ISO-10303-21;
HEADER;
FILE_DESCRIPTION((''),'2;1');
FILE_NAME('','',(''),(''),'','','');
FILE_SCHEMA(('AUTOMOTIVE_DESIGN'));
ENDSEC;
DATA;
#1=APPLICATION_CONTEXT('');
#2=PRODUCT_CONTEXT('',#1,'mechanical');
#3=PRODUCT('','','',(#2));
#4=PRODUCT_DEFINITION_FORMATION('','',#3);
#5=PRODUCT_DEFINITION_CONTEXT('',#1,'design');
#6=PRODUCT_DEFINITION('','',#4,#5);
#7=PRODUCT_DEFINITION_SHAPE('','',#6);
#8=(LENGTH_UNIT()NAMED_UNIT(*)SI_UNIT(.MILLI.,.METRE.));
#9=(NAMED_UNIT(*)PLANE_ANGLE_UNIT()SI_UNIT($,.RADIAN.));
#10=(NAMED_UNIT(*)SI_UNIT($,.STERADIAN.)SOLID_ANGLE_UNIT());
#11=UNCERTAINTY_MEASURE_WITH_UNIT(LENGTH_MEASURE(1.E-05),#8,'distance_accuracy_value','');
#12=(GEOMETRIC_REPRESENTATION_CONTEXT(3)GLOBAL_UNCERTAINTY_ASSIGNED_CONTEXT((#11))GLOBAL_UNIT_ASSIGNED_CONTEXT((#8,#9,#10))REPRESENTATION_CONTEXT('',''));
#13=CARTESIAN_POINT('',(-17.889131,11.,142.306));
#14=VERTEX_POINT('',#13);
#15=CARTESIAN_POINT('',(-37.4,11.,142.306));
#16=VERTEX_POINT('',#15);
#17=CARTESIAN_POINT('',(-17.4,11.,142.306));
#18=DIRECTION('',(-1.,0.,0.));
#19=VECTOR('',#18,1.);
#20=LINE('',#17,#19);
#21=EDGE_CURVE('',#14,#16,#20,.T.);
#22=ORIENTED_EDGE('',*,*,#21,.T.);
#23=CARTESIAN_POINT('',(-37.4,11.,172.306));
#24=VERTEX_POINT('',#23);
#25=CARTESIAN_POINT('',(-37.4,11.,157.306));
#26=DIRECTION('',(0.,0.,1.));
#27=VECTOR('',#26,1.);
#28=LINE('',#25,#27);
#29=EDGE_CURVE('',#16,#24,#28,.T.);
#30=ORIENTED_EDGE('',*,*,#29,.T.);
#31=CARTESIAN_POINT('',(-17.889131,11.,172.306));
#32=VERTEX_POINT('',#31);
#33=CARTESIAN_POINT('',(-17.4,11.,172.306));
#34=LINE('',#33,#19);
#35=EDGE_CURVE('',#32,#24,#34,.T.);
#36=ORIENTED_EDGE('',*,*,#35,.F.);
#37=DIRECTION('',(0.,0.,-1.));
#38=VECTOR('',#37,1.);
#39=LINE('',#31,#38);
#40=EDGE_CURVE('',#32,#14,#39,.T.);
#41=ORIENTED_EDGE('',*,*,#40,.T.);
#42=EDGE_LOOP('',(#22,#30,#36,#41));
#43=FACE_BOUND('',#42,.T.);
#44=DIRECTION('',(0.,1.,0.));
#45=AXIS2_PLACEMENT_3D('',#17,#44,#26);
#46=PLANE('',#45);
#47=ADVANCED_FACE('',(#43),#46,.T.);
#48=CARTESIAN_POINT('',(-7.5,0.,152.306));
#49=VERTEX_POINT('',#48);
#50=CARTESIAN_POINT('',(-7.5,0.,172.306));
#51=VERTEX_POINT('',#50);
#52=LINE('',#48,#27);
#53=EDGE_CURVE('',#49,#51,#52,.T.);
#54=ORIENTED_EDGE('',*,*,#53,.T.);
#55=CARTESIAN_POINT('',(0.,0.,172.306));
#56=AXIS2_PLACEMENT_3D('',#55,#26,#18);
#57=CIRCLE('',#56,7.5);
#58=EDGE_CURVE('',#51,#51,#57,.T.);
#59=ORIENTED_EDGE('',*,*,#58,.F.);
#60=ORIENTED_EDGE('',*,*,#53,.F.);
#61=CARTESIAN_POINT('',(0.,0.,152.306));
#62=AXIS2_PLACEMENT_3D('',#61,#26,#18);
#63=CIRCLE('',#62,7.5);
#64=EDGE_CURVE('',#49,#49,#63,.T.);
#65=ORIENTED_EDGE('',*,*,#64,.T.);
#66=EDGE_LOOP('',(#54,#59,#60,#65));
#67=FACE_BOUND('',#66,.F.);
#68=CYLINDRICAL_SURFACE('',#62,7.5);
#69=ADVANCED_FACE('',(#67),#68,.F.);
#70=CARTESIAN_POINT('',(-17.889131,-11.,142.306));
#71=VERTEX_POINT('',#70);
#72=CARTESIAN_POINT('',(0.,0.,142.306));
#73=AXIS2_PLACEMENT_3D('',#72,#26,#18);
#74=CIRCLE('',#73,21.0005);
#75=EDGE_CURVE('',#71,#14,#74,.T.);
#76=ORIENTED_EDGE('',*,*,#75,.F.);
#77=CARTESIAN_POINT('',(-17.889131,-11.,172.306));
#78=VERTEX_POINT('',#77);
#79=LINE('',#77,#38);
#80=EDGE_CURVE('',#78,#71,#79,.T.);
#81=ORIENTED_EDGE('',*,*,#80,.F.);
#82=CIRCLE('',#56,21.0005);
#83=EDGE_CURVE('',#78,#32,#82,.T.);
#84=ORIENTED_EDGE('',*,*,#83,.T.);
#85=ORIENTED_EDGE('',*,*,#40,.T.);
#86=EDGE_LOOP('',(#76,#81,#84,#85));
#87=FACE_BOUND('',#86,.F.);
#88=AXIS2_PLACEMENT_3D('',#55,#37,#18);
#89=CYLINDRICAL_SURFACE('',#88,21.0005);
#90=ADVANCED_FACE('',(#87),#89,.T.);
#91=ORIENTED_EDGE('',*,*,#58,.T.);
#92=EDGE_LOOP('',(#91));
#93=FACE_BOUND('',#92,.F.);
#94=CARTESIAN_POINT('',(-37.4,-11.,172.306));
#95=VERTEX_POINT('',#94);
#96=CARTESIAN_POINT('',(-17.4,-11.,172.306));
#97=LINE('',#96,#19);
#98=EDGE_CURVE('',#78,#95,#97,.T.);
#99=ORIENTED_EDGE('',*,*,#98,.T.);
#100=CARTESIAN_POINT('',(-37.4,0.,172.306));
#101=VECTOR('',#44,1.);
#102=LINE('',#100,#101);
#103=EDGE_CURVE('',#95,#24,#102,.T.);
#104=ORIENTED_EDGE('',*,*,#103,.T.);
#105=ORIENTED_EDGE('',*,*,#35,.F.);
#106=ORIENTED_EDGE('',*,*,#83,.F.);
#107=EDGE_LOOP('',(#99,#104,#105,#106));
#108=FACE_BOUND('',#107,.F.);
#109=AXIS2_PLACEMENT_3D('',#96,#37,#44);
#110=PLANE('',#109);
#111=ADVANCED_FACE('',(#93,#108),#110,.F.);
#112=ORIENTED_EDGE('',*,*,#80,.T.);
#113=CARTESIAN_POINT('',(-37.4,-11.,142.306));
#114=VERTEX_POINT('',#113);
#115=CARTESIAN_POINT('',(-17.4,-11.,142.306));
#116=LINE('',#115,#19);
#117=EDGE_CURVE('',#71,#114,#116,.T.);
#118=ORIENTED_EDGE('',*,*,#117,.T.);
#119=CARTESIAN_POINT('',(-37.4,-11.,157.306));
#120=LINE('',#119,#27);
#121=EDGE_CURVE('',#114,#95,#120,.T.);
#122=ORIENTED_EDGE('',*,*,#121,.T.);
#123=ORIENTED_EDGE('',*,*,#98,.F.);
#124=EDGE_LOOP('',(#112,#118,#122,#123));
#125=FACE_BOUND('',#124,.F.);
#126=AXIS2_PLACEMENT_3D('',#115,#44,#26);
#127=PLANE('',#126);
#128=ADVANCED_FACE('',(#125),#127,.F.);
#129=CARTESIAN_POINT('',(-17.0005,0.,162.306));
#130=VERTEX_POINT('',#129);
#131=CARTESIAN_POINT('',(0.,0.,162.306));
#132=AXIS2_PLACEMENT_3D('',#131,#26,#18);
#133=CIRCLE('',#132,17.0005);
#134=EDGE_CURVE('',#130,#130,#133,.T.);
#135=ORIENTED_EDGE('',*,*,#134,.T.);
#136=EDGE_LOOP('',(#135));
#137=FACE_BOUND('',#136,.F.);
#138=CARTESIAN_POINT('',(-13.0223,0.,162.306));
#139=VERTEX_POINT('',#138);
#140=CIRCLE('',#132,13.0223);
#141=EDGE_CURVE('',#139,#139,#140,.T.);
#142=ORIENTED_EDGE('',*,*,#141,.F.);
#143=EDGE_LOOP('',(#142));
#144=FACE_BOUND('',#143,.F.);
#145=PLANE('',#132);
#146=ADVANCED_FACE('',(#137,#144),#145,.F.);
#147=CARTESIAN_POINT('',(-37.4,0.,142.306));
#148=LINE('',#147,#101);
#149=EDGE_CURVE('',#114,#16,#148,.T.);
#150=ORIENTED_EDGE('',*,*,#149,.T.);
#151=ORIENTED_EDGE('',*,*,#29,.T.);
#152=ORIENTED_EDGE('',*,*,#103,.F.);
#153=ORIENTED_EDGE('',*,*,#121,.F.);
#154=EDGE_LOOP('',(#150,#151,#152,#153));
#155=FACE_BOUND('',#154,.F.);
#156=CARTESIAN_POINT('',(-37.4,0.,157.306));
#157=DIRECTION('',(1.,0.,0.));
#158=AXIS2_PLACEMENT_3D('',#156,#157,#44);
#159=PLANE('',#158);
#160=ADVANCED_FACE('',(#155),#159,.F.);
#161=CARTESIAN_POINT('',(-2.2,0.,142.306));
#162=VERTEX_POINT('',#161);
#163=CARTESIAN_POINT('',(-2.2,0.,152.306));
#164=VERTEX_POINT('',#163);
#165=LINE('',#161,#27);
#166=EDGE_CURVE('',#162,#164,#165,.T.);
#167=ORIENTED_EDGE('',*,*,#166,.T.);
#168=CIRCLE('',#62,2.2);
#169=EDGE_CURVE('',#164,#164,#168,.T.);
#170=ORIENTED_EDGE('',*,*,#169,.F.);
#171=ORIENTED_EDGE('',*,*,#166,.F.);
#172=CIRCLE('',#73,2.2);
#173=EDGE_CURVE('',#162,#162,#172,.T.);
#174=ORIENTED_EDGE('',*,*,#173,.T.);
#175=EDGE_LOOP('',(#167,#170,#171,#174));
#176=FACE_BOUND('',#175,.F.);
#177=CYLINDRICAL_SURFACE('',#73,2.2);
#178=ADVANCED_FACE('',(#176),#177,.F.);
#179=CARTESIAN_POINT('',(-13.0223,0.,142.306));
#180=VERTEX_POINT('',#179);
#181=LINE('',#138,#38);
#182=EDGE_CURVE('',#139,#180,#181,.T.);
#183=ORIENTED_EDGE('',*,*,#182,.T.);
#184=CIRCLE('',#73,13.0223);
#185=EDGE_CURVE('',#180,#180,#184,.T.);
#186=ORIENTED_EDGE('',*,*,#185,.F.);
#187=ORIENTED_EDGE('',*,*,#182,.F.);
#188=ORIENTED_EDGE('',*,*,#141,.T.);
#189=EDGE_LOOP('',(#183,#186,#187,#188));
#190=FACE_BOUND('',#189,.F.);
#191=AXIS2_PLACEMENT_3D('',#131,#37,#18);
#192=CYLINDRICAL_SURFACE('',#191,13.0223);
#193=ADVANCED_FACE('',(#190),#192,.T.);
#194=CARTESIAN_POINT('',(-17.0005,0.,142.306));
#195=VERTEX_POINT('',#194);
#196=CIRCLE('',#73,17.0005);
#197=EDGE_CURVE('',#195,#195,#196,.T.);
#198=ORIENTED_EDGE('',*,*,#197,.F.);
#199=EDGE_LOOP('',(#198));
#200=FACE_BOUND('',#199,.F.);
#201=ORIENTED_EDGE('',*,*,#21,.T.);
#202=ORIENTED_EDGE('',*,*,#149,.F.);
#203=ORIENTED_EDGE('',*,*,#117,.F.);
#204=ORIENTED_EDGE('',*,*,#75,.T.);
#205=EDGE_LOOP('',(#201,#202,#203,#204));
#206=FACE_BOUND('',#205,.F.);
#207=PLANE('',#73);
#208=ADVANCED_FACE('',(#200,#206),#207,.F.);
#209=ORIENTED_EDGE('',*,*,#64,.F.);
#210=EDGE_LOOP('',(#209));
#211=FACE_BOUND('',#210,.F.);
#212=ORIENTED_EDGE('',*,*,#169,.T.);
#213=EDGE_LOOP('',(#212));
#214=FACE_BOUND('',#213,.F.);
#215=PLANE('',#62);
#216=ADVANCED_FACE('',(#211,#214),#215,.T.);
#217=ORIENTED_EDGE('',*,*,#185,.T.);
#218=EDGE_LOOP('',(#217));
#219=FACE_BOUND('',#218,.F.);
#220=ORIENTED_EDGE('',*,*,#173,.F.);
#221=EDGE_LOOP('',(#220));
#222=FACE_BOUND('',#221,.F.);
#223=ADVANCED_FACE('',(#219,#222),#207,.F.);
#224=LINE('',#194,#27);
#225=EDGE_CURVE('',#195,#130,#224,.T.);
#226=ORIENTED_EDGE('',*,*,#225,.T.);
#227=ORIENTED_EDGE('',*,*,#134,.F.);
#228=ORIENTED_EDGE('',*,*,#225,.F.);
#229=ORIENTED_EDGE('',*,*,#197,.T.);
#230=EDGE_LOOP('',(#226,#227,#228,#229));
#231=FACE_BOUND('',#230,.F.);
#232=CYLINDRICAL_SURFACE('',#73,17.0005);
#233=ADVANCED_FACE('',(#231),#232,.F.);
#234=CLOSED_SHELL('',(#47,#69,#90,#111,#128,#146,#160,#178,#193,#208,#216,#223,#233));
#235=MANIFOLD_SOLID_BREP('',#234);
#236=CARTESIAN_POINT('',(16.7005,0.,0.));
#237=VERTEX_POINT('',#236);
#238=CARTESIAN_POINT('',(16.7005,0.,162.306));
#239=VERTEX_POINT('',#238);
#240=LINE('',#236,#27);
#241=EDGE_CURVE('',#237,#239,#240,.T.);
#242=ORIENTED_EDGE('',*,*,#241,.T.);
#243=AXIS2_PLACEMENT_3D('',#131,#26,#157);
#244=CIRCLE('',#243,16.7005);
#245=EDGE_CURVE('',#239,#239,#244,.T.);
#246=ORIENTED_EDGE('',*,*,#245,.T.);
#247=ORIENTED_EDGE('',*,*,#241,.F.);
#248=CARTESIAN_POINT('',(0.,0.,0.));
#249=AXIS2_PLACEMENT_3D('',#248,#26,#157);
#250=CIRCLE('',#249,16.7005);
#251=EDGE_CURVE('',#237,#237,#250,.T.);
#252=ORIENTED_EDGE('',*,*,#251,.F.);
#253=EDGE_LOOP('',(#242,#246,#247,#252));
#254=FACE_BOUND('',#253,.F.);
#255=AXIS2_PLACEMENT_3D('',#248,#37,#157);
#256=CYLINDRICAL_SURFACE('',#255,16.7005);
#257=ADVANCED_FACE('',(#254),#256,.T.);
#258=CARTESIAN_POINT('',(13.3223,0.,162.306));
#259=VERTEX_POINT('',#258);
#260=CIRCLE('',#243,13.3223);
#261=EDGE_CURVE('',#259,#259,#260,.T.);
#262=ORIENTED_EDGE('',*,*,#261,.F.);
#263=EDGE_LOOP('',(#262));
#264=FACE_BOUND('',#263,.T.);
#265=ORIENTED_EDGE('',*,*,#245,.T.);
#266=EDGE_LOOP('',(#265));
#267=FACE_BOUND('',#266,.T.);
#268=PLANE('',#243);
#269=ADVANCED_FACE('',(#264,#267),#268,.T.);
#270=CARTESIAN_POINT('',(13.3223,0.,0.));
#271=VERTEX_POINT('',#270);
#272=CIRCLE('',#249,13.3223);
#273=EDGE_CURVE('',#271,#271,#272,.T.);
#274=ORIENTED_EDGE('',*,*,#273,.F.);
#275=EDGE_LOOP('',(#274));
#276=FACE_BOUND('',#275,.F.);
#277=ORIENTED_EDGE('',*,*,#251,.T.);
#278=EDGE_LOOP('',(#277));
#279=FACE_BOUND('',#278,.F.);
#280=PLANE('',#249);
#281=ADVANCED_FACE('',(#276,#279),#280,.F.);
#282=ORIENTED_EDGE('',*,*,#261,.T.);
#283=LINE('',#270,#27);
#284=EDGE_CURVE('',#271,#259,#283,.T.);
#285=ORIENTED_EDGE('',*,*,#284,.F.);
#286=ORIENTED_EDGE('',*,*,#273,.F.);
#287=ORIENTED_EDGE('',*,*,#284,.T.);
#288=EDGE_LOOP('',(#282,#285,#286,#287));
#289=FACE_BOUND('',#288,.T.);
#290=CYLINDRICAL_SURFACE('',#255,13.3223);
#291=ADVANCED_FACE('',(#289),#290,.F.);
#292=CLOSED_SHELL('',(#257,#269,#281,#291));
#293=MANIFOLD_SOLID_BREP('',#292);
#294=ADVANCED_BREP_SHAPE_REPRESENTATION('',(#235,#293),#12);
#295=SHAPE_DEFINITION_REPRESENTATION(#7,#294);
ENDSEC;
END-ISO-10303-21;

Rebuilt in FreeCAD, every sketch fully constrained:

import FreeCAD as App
import Part
import Sketcher


def add_polygon(sketch, points):
    """Adds a closed chain of lines whose ends are joined by coincident constraints."""
    first, n = sketch.GeometryCount, len(points)
    for a, b in zip(points, points[1:] + points[:1]):
        sketch.addGeometry(Part.LineSegment(App.Vector(*a, 0), App.Vector(*b, 0)), False)
    for i in range(n):
        sketch.addConstraint(Sketcher.Constraint("Coincident", first + i, 2, first + (i + 1) % n, 1))

doc = App.newDocument("Part")
body = doc.addObject("PartDesign::Body", "Body")

sketch1 = doc.addObject("Sketcher::SketchObject", "Sketch")
body.addObject(sketch1)
sketch1.AttachmentSupport = (doc.XY_Plane, [""])
sketch1.MapMode = "FlatFace"
sketch1.addGeometry([
    Part.Circle(App.Vector(0, 0, 0), App.Vector(0, 0, 1), 17),
    Part.Circle(App.Vector(0, 0, 0), App.Vector(0, 0, 1), 13),
], False)
sketch1.addConstraint([
    Sketcher.Constraint("Coincident", 0, 3, -1, 1),
    Sketcher.Constraint("Coincident", 1, 3, -1, 1),
    Sketcher.Constraint("Diameter", 0, 33.401),
    Sketcher.Constraint("Diameter", 1, 26.6446),
])
pad1 = doc.addObject("PartDesign::Pad", "Pad")
body.addObject(pad1)
pad1.Profile = sketch1
pad1.Length = 162.306
body2 = doc.addObject("PartDesign::Body", "Body001")

sketch2 = doc.addObject("Sketcher::SketchObject", "Sketch001")
body2.addObject(sketch2)
sketch2.AttachmentSupport = (doc.getObject("XZ_Plane001"), [""])
sketch2.MapMode = "FlatFace"
add_polygon(sketch2, [(-21, 142.3), (-17, 142.3), (-17, 162.3), (-13, 162.3), (-13, 142.3), (-2.2, 142.3), (-2.2, 152.3), (-7.5, 152.3), (-7.5, 172.3), (-21, 172.3)])
sketch2.addConstraint([
    Sketcher.Constraint("Horizontal", 0),
    Sketcher.Constraint("Vertical", 1),
    Sketcher.Constraint("Horizontal", 2),
    Sketcher.Constraint("Vertical", 3),
    Sketcher.Constraint("Horizontal", 4),
    Sketcher.Constraint("Vertical", 5),
    Sketcher.Constraint("Horizontal", 6),
    Sketcher.Constraint("Vertical", 7),
    Sketcher.Constraint("Horizontal", 8),
    Sketcher.Constraint("Vertical", 9),
    Sketcher.Constraint("Horizontal", 0, 2, 3, 2),
    Sketcher.Constraint("Equal", 3, 7),
    Sketcher.Constraint("DistanceX", 0, 1, 0, 2, 4.0),
    Sketcher.Constraint("DistanceY", 1, 1, 1, 2, 20.0),
    Sketcher.Constraint("DistanceY", 5, 1, 5, 2, 10.0),
    Sketcher.Constraint("DistanceX", 6, 2, 6, 1, 5.3),
    Sketcher.Constraint("DistanceX", 4, 2, -1, 1, 2.2),
    Sketcher.Constraint("DistanceX", 2, 1, 2, 2, 3.9782),
    Sketcher.Constraint("DistanceX", 4, 1, 4, 2, 10.8223),
    Sketcher.Constraint("DistanceY", -1, 1, 0, 2, 142.306),
])
revolution = doc.addObject("PartDesign::Revolution", "Revolution")
body2.addObject(revolution)
revolution.Profile = sketch2
revolution.ReferenceAxis = (sketch2, ["V_Axis"])
revolution.Angle = 360

sketch3 = doc.addObject("Sketcher::SketchObject", "Sketch002")
body2.addObject(sketch3)
sketch3.AttachmentSupport = (doc.getObject("YZ_Plane001"), [""])
sketch3.MapMode = "FlatFace"
sketch3.AttachmentOffset = App.Placement(App.Vector(0, 0, -17.4), App.Rotation())
add_polygon(sketch3, [(-11, 172), (-11, 142), (11, 142), (11, 172)])
sketch3.addConstraint([
    Sketcher.Constraint("Vertical", 0),
    Sketcher.Constraint("Horizontal", 1),
    Sketcher.Constraint("Vertical", 2),
    Sketcher.Constraint("Horizontal", 3),
    Sketcher.Constraint("DistanceX", 1, 1, 1, 2, 22.0),
    Sketcher.Constraint("DistanceY", 0, 2, 0, 1, 30.0),
    Sketcher.Constraint("DistanceX", 0, 2, -1, 1, 11.0),
    Sketcher.Constraint("DistanceY", -1, 1, 0, 2, 142.306),
])
pad2 = doc.addObject("PartDesign::Pad", "Pad001")
body2.addObject(pad2)
pad2.Profile = sketch3
pad2.Length = 20
pad2.Reversed = True

doc.recompute()
